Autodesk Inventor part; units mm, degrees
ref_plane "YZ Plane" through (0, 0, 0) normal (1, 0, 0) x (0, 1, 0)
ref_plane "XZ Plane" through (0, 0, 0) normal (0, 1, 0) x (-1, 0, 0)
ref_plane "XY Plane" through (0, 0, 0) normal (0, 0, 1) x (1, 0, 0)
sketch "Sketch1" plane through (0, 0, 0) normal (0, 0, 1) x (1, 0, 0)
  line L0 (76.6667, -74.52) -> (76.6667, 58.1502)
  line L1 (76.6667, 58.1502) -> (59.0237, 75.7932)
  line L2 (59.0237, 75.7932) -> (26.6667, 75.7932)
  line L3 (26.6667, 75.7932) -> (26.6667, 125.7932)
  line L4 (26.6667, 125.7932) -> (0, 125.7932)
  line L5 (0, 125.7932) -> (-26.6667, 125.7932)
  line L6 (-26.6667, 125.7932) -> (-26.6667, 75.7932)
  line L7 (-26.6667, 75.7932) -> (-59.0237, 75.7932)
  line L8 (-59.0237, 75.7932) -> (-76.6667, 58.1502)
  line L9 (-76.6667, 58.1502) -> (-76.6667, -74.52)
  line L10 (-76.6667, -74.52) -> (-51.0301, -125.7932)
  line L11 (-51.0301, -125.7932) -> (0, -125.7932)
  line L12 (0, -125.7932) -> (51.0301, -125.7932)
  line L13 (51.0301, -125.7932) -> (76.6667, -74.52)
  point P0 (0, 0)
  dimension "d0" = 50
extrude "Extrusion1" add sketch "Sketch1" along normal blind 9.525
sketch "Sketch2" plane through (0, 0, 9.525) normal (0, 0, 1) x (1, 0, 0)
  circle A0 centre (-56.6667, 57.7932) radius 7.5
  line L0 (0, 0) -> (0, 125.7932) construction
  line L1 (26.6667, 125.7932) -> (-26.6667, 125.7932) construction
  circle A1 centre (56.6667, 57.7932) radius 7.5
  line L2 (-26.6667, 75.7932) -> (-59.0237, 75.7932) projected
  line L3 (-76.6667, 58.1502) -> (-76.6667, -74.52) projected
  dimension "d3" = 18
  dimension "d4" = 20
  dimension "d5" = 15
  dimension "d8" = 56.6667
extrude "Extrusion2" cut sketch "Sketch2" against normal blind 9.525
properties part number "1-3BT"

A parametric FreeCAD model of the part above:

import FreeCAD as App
import Part
import Sketcher

V = App.Vector

doc = App.newDocument("Part")
body = doc.addObject("PartDesign::Body", "Body")

# Sketch on XY plane
sketch1 = body.newObject("Sketcher::SketchObject", "Sketch")
sketch1.AttachmentSupport = (doc.getObject("XY_Plane"), [""])
sketch1.MapMode = "FlatFace"
sketch1.addGeometry([
    Part.LineSegment(V(51, -126, 0), V(77, -75, 0)),  # 0
    Part.LineSegment(V(77, -75, 0), V(77, 58, 0)),  # 1
    Part.LineSegment(V(77, 58, 0), V(59, 76, 0)),  # 2
    Part.LineSegment(V(59, 76, 0), V(27, 76, 0)),  # 3
    Part.LineSegment(V(27, 76, 0), V(27, 126, 0)),  # 4
    Part.LineSegment(V(27, 126, 0), V(-27, 126, 0)),  # 5
    Part.LineSegment(V(-27, 126, 0), V(-27, 76, 0)),  # 6
    Part.LineSegment(V(-27, 76, 0), V(-59, 76, 0)),  # 7
    Part.LineSegment(V(-59, 76, 0), V(-77, 58, 0)),  # 8
    Part.LineSegment(V(-77, 58, 0), V(-77, -75, 0)),  # 9
    Part.LineSegment(V(-77, -75, 0), V(-51, -126, 0)),  # 10
    Part.LineSegment(V(-51, -126, 0), V(51, -126, 0)),  # 11
], False)
sketch1.addConstraint([
    Sketcher.Constraint("Coincident", 0, 2, 1, 1),
    Sketcher.Constraint("Coincident", 1, 2, 2, 1),
    Sketcher.Constraint("Coincident", 2, 2, 3, 1),
    Sketcher.Constraint("Coincident", 3, 2, 4, 1),
    Sketcher.Constraint("Coincident", 4, 2, 5, 1),
    Sketcher.Constraint("Coincident", 5, 2, 6, 1),
    Sketcher.Constraint("Coincident", 6, 2, 7, 1),
    Sketcher.Constraint("Coincident", 7, 2, 8, 1),
    Sketcher.Constraint("Coincident", 8, 2, 9, 1),
    Sketcher.Constraint("Coincident", 9, 2, 10, 1),
    Sketcher.Constraint("Coincident", 10, 2, 11, 1),
    Sketcher.Constraint("Coincident", 11, 2, 0, 1),
    Sketcher.Constraint("Vertical", 1),
    Sketcher.Constraint("Horizontal", 3),
    Sketcher.Constraint("Vertical", 4),
    Sketcher.Constraint("Horizontal", 5),
    Sketcher.Constraint("Vertical", 6),
    Sketcher.Constraint("Horizontal", 7),
    Sketcher.Constraint("Vertical", 9),
    Sketcher.Constraint("Horizontal", 11),
    Sketcher.Constraint("Symmetric", 3, 2, 6, 2, -2),
    Sketcher.Constraint("Symmetric", 1, 2, 8, 2, -2),
    Sketcher.Constraint("Perpendicular", 2, 8),
    Sketcher.Constraint("Horizontal", 0, 2, 9, 2),
    Sketcher.Constraint("Equal", 3, 7),
    Sketcher.Constraint("Equal", 0, 10),
    Sketcher.Constraint("DistanceY", 4, 1, 4, 2, 50.0),
    Sketcher.Constraint("DistanceX", 3, 2, 1, 2, 50.0),
    Sketcher.Constraint("DistanceX", 3, 2, 3, 1, 32.357),
    Sketcher.Constraint("DistanceY", 0, 2, -1, 1, 74.52),
    Sketcher.Constraint("DistanceX", 10, 2, -1, 1, 51.03),
    Sketcher.Constraint("DistanceX", 5, 2, 5, 1, 53.3334),
    Sketcher.Constraint("DistanceY", 1, 1, 1, 2, 132.6702),
    Sketcher.Constraint("Distance", 0, 57.3252),
])
pad1 = body.newObject("PartDesign::Pad", "Pad")
pad1.Profile = sketch1
pad1.Length = 9.525

# Sketch on XY plane
sketch2 = body.newObject("Sketcher::SketchObject", "Sketch001")
sketch2.AttachmentSupport = (doc.getObject("XY_Plane"), [""])
sketch2.MapMode = "FlatFace"
sketch2.AttachmentOffset = App.Placement(V(0, 0, 9.525), App.Rotation())
sketch2.addGeometry([
    Part.Circle(V(-57, 58, 0), V(0, 0, 1), 8),
    Part.Circle(V(57, 58, 0), V(0, 0, 1), 8),
], False)
sketch2.addConstraint([
    Sketcher.Constraint("Equal", 0, 1),
    Sketcher.Constraint("Symmetric", 0, 3, 1, 3, -2),
    Sketcher.Constraint("Diameter", 0, 15.0),
    Sketcher.Constraint("DistanceX", 0, 3, -1, 1, 56.6667),
    Sketcher.Constraint("DistanceY", -1, 1, 0, 3, 57.7932),
])
pocket1 = body.newObject("PartDesign::Pocket", "Pocket")
pocket1.Profile = sketch2
pocket1.Length = 9.525

doc.recompute()
